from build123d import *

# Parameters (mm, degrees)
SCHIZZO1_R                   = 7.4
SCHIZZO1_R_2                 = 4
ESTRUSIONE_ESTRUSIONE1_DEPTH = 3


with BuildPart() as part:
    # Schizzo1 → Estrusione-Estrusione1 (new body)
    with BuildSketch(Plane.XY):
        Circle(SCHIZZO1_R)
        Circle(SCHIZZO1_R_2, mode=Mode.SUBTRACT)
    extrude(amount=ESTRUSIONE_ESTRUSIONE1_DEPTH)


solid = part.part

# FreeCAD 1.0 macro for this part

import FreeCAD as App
import Part
import Sketcher
from FreeCAD import Vector

doc = App.newDocument("Part")
body = doc.addObject("PartDesign::Body", "Body")

# Sketch on XY plane
sketch1 = body.newObject("Sketcher::SketchObject", "Sketch")
sketch1.AttachmentSupport = (doc.getObject("XY_Plane"), [""])
sketch1.MapMode = "FlatFace"
sketch1.addGeometry([
    Part.Circle(Vector(0, 0, 0), Vector(0, 0, 1), 7.4),
    Part.Circle(Vector(0, 0, 0), Vector(0, 0, 1), 4),
], False)
sketch1.addConstraint([
    Sketcher.Constraint("Coincident", 0, 3, -1, 1),
    Sketcher.Constraint("Coincident", 1, 3, -1, 1),
    Sketcher.Constraint("Diameter", 1, 8.0),
    Sketcher.Constraint("Diameter", 0, 14.8),
])
pad1 = body.newObject("PartDesign::Pad", "Pad")
pad1.Profile = sketch1
pad1.Length = 3

doc.recompute()
